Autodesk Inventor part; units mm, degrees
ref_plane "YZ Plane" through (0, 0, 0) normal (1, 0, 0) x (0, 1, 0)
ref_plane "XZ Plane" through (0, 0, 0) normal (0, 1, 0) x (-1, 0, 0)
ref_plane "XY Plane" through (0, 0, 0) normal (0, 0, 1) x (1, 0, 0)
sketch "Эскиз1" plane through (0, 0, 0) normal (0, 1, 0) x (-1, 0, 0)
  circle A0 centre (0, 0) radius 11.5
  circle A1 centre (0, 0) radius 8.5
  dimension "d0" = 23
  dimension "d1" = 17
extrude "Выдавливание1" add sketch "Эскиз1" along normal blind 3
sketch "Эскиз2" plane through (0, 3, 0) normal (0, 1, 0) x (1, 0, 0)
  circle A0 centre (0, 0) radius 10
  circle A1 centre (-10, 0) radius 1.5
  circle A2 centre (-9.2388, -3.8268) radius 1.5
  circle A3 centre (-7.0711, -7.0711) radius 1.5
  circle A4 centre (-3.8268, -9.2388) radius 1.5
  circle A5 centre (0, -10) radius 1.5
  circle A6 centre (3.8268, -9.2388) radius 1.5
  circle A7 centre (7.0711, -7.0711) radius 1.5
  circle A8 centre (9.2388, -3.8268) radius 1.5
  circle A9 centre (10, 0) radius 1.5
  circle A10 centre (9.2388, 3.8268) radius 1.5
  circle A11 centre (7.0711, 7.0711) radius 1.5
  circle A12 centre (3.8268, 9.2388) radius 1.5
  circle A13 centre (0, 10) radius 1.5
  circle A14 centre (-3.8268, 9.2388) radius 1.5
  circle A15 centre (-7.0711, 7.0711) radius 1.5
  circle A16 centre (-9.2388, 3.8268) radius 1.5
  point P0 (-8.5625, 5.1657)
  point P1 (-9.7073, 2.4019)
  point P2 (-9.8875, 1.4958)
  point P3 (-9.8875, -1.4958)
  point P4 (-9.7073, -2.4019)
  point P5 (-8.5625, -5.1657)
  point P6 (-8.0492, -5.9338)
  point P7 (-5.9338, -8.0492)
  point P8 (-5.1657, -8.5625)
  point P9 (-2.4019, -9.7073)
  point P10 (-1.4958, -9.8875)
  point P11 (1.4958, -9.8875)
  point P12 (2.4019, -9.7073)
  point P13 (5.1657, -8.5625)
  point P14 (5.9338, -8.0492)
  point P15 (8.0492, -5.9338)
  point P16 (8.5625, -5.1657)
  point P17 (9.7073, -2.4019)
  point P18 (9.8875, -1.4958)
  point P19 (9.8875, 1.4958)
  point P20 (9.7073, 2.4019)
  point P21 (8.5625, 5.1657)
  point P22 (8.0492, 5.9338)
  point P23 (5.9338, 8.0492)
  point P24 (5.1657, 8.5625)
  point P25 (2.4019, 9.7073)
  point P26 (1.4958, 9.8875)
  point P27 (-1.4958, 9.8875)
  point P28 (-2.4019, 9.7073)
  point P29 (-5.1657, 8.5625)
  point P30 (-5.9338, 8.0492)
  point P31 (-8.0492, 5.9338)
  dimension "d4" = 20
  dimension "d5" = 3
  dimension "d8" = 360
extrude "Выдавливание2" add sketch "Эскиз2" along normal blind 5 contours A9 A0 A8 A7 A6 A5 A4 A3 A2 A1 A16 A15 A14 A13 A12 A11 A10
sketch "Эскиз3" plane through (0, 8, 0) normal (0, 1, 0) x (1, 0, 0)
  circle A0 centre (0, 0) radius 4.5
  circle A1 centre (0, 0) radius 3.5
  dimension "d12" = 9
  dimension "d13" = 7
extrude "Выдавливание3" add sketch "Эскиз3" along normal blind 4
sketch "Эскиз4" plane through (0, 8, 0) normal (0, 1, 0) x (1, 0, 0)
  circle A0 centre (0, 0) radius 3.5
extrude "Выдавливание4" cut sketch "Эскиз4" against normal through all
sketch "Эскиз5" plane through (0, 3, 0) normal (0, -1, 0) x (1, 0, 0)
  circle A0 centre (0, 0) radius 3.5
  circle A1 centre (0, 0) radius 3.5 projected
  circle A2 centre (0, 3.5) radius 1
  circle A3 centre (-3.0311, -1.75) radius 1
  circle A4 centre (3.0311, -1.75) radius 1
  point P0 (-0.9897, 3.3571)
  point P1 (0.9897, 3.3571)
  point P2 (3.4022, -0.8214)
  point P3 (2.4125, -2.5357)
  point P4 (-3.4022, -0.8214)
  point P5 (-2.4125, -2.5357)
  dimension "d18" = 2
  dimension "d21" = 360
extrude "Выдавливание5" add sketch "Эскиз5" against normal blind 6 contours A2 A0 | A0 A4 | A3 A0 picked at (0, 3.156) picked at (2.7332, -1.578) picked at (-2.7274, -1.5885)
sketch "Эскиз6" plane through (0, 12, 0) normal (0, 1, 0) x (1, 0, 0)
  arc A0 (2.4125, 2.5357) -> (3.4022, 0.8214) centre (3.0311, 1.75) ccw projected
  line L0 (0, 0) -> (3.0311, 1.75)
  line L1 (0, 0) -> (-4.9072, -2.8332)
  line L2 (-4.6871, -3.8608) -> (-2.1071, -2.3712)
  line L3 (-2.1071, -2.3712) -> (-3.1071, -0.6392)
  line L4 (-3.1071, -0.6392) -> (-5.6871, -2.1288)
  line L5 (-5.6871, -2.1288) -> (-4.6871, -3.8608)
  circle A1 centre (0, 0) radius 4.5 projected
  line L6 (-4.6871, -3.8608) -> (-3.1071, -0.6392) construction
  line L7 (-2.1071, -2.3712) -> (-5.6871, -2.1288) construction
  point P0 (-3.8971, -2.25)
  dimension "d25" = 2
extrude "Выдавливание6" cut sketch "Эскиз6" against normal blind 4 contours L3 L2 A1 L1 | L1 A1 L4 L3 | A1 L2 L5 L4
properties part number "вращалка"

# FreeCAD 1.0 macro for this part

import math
import FreeCAD as App
import Part
import Sketcher
Q = App.Units.Quantity

doc = App.newDocument("Part")
body = doc.addObject("PartDesign::Body", "Body")

# Sketch on XZ plane
sketch1 = body.newObject("Sketcher::SketchObject", "Sketch")
sketch1.AttachmentSupport = (doc.getObject("XZ_Plane"), [""])
sketch1.MapMode = "FlatFace"
sketch1.addGeometry([
    Part.Circle(App.Vector(0, 0, 0), App.Vector(0, 0, 1), 11.5),
    Part.Circle(App.Vector(0, 0, 0), App.Vector(0, 0, 1), 8.5),
], False)
sketch1.addConstraint([
    Sketcher.Constraint("Coincident", 0, 3, -1, 1),
    Sketcher.Constraint("Coincident", 1, 3, -1, 1),
    Sketcher.Constraint("Diameter", 0, 23.0),
    Sketcher.Constraint("Diameter", 1, 17.0),
])
pad1 = body.newObject("PartDesign::Pad", "Pad")
pad1.Profile = sketch1
pad1.Length = 3
pad1.Reversed = True

# Sketch on XZ plane
sketch2 = body.newObject("Sketcher::SketchObject", "Sketch001")
sketch2.AttachmentSupport = (doc.getObject("XZ_Plane"), [""])
sketch2.MapMode = "FlatFace"
sketch2.AttachmentOffset = App.Placement(App.Vector(0, 0, -3), App.Rotation())
sketch2.addGeometry([
    Part.ArcOfCircle(Part.Circle(App.Vector(10, 0, 0), App.Vector(0, 0, 1), 1.5), math.radians(94.301222), math.radians(265.698778)),  # 0
    Part.ArcOfCircle(Part.Circle(App.Vector(0, 0, 0), App.Vector(0, 0, 1), 10), math.radians(-13.89736), math.radians(-8.602445)),  # 1
    Part.ArcOfCircle(Part.Circle(App.Vector(9.2388, -3.8268, 0), App.Vector(0, 0, 1), 1.5), math.radians(71.80108), math.radians(243.199304)),  # 2
    Part.ArcOfCircle(Part.Circle(App.Vector(0, 0, 0), App.Vector(0, 0, 1), 10), math.radians(-36.397575), math.radians(-31.102256)),  # 3
    Part.ArcOfCircle(Part.Circle(App.Vector(7.0711, -7.0711, 0), App.Vector(0, 0, 1), 1.5), math.radians(49.302946), math.radians(220.697054)),  # 4
    Part.ArcOfCircle(Part.Circle(App.Vector(0, 0, 0), App.Vector(0, 0, 1), 10), math.radians(-58.897744), math.radians(-53.602425)),  # 5
    Part.ArcOfCircle(Part.Circle(App.Vector(3.8268, -9.2388, 0), App.Vector(0, 0, 1), 1.5), math.radians(26.800696), math.radians(198.19892)),  # 6
    Part.ArcOfCircle(Part.Circle(App.Vector(0, 0, 0), App.Vector(0, 0, 1), 10), math.radians(-81.397555), math.radians(-76.10264)),  # 7
    Part.ArcOfCircle(Part.Circle(App.Vector(0, -10, 0), App.Vector(0, 0, 1), 1.5), math.radians(4.301222), math.radians(175.698778)),  # 8
    Part.ArcOfCircle(Part.Circle(App.Vector(0, 0, 0), App.Vector(0, 0, 1), 10), math.radians(-103.89736), math.radians(-98.602445)),  # 9
    Part.ArcOfCircle(Part.Circle(App.Vector(-3.8268, -9.2388, 0), App.Vector(0, 0, 1), 1.5), math.radians(-18.19892), math.radians(153.199304)),  # 10
    Part.ArcOfCircle(Part.Circle(App.Vector(0, 0, 0), App.Vector(0, 0, 1), 10), math.radians(-126.397575), math.radians(-121.102256)),  # 11
    Part.ArcOfCircle(Part.Circle(App.Vector(-7.0711, -7.0711, 0), App.Vector(0, 0, 1), 1.5), math.radians(-40.697054), math.radians(130.697054)),  # 12
    Part.ArcOfCircle(Part.Circle(App.Vector(0, 0, 0), App.Vector(0, 0, 1), 10), math.radians(-148.897744), math.radians(-143.602425)),  # 13
    Part.ArcOfCircle(Part.Circle(App.Vector(-9.2388, -3.8268, 0), App.Vector(0, 0, 1), 1.5), math.radians(-63.199304), math.radians(108.19892)),  # 14
    Part.ArcOfCircle(Part.Circle(App.Vector(0, 0, 0), App.Vector(0, 0, 1), 10), math.radians(-171.397555), math.radians(-166.10264)),  # 15
    Part.ArcOfCircle(Part.Circle(App.Vector(-10, 0, 0), App.Vector(0, 0, 1), 1.5), math.radians(-85.698778), math.radians(85.698778)),  # 16
    Part.ArcOfCircle(Part.Circle(App.Vector(0, 0, 0), App.Vector(0, 0, 1), 10), math.radians(166.10264), math.radians(171.397555)),  # 17
    Part.ArcOfCircle(Part.Circle(App.Vector(-9.2388, 3.8268, 0), App.Vector(0, 0, 1), 1.5), math.radians(-108.19892), math.radians(63.199304)),  # 18
    Part.ArcOfCircle(Part.Circle(App.Vector(0, 0, 0), App.Vector(0, 0, 1), 10), math.radians(143.602425), math.radians(148.897744)),  # 19
    Part.ArcOfCircle(Part.Circle(App.Vector(-7.0711, 7.0711, 0), App.Vector(0, 0, 1), 1.5), math.radians(-130.697054), math.radians(40.697054)),  # 20
    Part.ArcOfCircle(Part.Circle(App.Vector(0, 0, 0), App.Vector(0, 0, 1), 10), math.radians(121.102256), math.radians(126.397575)),  # 21
    Part.ArcOfCircle(Part.Circle(App.Vector(-3.8268, 9.2388, 0), App.Vector(0, 0, 1), 1.5), math.radians(-153.199304), math.radians(18.19892)),  # 22
    Part.ArcOfCircle(Part.Circle(App.Vector(0, 0, 0), App.Vector(0, 0, 1), 10), math.radians(98.602445), math.radians(103.89736)),  # 23
    Part.ArcOfCircle(Part.Circle(App.Vector(0, 10, 0), App.Vector(0, 0, 1), 1.5), math.radians(-175.698778), math.radians(-4.301222)),  # 24
    Part.ArcOfCircle(Part.Circle(App.Vector(0, 0, 0), App.Vector(0, 0, 1), 10), math.radians(76.10264), math.radians(81.397555)),  # 25
    Part.ArcOfCircle(Part.Circle(App.Vector(3.8268, 9.2388, 0), App.Vector(0, 0, 1), 1.5), math.radians(161.80108), math.radians(333.199304)),  # 26
    Part.ArcOfCircle(Part.Circle(App.Vector(0, 0, 0), App.Vector(0, 0, 1), 10), math.radians(53.602425), math.radians(58.897744)),  # 27
    Part.ArcOfCircle(Part.Circle(App.Vector(7.0711, 7.0711, 0), App.Vector(0, 0, 1), 1.5), math.radians(139.302946), math.radians(310.697054)),  # 28
    Part.ArcOfCircle(Part.Circle(App.Vector(0, 0, 0), App.Vector(0, 0, 1), 10), math.radians(31.102256), math.radians(36.397575)),  # 29
    Part.ArcOfCircle(Part.Circle(App.Vector(9.2388, 3.8268, 0), App.Vector(0, 0, 1), 1.5), math.radians(116.800696), math.radians(288.19892)),  # 30
    Part.ArcOfCircle(Part.Circle(App.Vector(0, 0, 0), App.Vector(0, 0, 1), 10), math.radians(8.602445), math.radians(13.89736)),  # 31
], False)
sketch2.addConstraint([
    Sketcher.Constraint("Coincident", 0, 2, 1, 2),
    Sketcher.Constraint("Coincident", 1, 1, 2, 1),
    Sketcher.Constraint("Coincident", 2, 2, 3, 2),
    Sketcher.Constraint("Coincident", 3, 1, 4, 1),
    Sketcher.Constraint("Coincident", 4, 2, 5, 2),
    Sketcher.Constraint("Coincident", 5, 1, 6, 1),
    Sketcher.Constraint("Coincident", 6, 2, 7, 2),
    Sketcher.Constraint("Coincident", 7, 1, 8, 1),
    Sketcher.Constraint("Coincident", 8, 2, 9, 2),
    Sketcher.Constraint("Coincident", 9, 1, 10, 1),
    Sketcher.Constraint("Coincident", 10, 2, 11, 2),
    Sketcher.Constraint("Coincident", 11, 1, 12, 1),
    Sketcher.Constraint("Coincident", 12, 2, 13, 2),
    Sketcher.Constraint("Coincident", 13, 1, 14, 1),
    Sketcher.Constraint("Coincident", 14, 2, 15, 2),
    Sketcher.Constraint("Coincident", 15, 1, 16, 1),
    Sketcher.Constraint("Coincident", 16, 2, 17, 2),
    Sketcher.Constraint("Coincident", 17, 1, 18, 1),
    Sketcher.Constraint("Coincident", 18, 2, 19, 2),
    Sketcher.Constraint("Coincident", 19, 1, 20, 1),
    Sketcher.Constraint("Coincident", 20, 2, 21, 2),
    Sketcher.Constraint("Coincident", 21, 1, 22, 1),
    Sketcher.Constraint("Coincident", 22, 2, 23, 2),
    Sketcher.Constraint("Coincident", 23, 1, 24, 1),
    Sketcher.Constraint("Coincident", 24, 2, 25, 2),
    Sketcher.Constraint("Coincident", 25, 1, 26, 1),
    Sketcher.Constraint("Coincident", 26, 2, 27, 2),
    Sketcher.Constraint("Coincident", 27, 1, 28, 1),
    Sketcher.Constraint("Coincident", 28, 2, 29, 2),
    Sketcher.Constraint("Coincident", 29, 1, 30, 1),
    Sketcher.Constraint("Coincident", 30, 2, 31, 2),
    Sketcher.Constraint("Coincident", 31, 1, 0, 1),
    Sketcher.Constraint("Coincident", 1, 3, -1, 1),
    Sketcher.Constraint("Coincident", 3, 3, -1, 1),
    Sketcher.Constraint("Coincident", 5, 3, -1, 1),
    Sketcher.Constraint("Coincident", 7, 3, -1, 1),
    Sketcher.Constraint("Coincident", 9, 3, -1, 1),
    Sketcher.Constraint("Coincident", 11, 3, -1, 1),
    Sketcher.Constraint("Coincident", 13, 3, -1, 1),
    Sketcher.Constraint("Coincident", 15, 3, -1, 1),
    Sketcher.Constraint("Coincident", 17, 3, -1, 1),
    Sketcher.Constraint("Coincident", 19, 3, -1, 1),
    Sketcher.Constraint("Coincident", 21, 3, -1, 1),
    Sketcher.Constraint("Coincident", 23, 3, -1, 1),
    Sketcher.Constraint("Coincident", 25, 3, -1, 1),
    Sketcher.Constraint("Coincident", 27, 3, -1, 1),
    Sketcher.Constraint("Coincident", 29, 3, -1, 1),
    Sketcher.Constraint("Coincident", 31, 3, -1, 1),
    Sketcher.Constraint("Equal", 0, 2),
    Sketcher.Constraint("Equal", 1, 3),
    Sketcher.Constraint("Equal", 2, 4),
    Sketcher.Constraint("Equal", 3, 5),
    Sketcher.Constraint("Equal", 4, 6),
    Sketcher.Constraint("Equal", 5, 7),
    Sketcher.Constraint("Equal", 6, 8),
    Sketcher.Constraint("Equal", 7, 9),
    Sketcher.Constraint("Equal", 8, 10),
    Sketcher.Constraint("Equal", 9, 11),
    Sketcher.Constraint("Equal", 10, 12),
    Sketcher.Constraint("Equal", 11, 13),
    Sketcher.Constraint("Equal", 12, 14),
    Sketcher.Constraint("Equal", 13, 15),
    Sketcher.Constraint("Equal", 14, 16),
    Sketcher.Constraint("Equal", 15, 17),
    Sketcher.Constraint("Equal", 16, 18),
    Sketcher.Constraint("Equal", 17, 19),
    Sketcher.Constraint("Equal", 18, 20),
    Sketcher.Constraint("Equal", 19, 21),
    Sketcher.Constraint("Equal", 20, 22),
    Sketcher.Constraint("Equal", 21, 23),
    Sketcher.Constraint("Equal", 22, 24),
    Sketcher.Constraint("Equal", 23, 25),
    Sketcher.Constraint("Equal", 24, 26),
    Sketcher.Constraint("Equal", 25, 27),
    Sketcher.Constraint("Equal", 26, 28),
    Sketcher.Constraint("Equal", 27, 29),
    Sketcher.Constraint("Equal", 28, 30),
    Sketcher.Constraint("Equal", 29, 31),
    Sketcher.Constraint("Symmetric", 0, 3, 16, 3, -1, 1),
    Sketcher.Constraint("Symmetric", 2, 3, 18, 3, -1, 1),
    Sketcher.Constraint("Symmetric", 4, 3, 20, 3, -1, 1),
    Sketcher.Constraint("Symmetric", 6, 3, 22, 3, -1, 1),
    Sketcher.Constraint("Symmetric", 8, 3, 24, 3, -1, 1),
    Sketcher.Constraint("Symmetric", 10, 3, 26, 3, -1, 1),
    Sketcher.Constraint("Symmetric", 12, 3, 28, 3, -1, 1),
    Sketcher.Constraint("Symmetric", 14, 3, 30, 3, -1, 1),
    Sketcher.Constraint("Symmetric", 6, 3, 10, 3, -2),
    Sketcher.Constraint("Symmetric", 4, 3, 12, 3, -2),
    Sketcher.Constraint("Symmetric", 2, 3, 14, 3, -2),
    Sketcher.Constraint("PointOnObject", 0, 3, -1),
    Sketcher.Constraint("PointOnObject", 8, 3, -2),
    Sketcher.Constraint("Radius", 1, 10.0),
    Sketcher.Constraint("Radius", 0, 1.5),
    Sketcher.Constraint("DistanceX", -1, 1, 0, 3, 10.0),
    Sketcher.Constraint("DistanceY", 8, 3, -1, 1, 10.0),
    Sketcher.Constraint("DistanceX", -1, 1, 4, 3, 7.071),
    Sketcher.Constraint("DistanceY", 4, 3, -1, 1, 7.071),
    Sketcher.Constraint("DistanceX", -1, 1, 2, 3, 9.2388),
    Sketcher.Constraint("DistanceY", 2, 3, -1, 1, 3.8268),
    Sketcher.Constraint("DistanceX", -1, 1, 6, 3, 3.8268),
    Sketcher.Constraint("DistanceY", 6, 3, -1, 1, 9.2388),
])
pad2 = body.newObject("PartDesign::Pad", "Pad001")
pad2.Profile = sketch2
pad2.Length = 5
pad2.Reversed = True

# Sketch on XZ plane
sketch3 = body.newObject("Sketcher::SketchObject", "Sketch002")
sketch3.AttachmentSupport = (doc.getObject("XZ_Plane"), [""])
sketch3.MapMode = "FlatFace"
sketch3.AttachmentOffset = App.Placement(App.Vector(0, 0, -8), App.Rotation())
sketch3.addGeometry([
    Part.Circle(App.Vector(0, 0, 0), App.Vector(0, 0, 1), 4.5),
    Part.Circle(App.Vector(0, 0, 0), App.Vector(0, 0, 1), 3.5),
], False)
sketch3.addConstraint([
    Sketcher.Constraint("Coincident", 0, 3, -1, 1),
    Sketcher.Constraint("Coincident", 1, 3, -1, 1),
    Sketcher.Constraint("Diameter", 0, 9.0),
    Sketcher.Constraint("Diameter", 1, 7.0),
])
pad3 = body.newObject("PartDesign::Pad", "Pad002")
pad3.Profile = sketch3
pad3.Length = 4
pad3.Reversed = True

# Sketch on XZ plane
sketch4 = body.newObject("Sketcher::SketchObject", "Sketch003")
sketch4.AttachmentSupport = (doc.getObject("XZ_Plane"), [""])
sketch4.MapMode = "FlatFace"
sketch4.AttachmentOffset = App.Placement(App.Vector(0, 0, -8), App.Rotation())
sketch4.addGeometry(Part.Circle(App.Vector(0, 0, 0), App.Vector(0, 0, 1), 3.5), False)
sketch4.addConstraint([
    Sketcher.Constraint("Coincident", 0, 3, -1, 1),
    Sketcher.Constraint("Diameter", 0, 7.0),
])
pocket1 = body.newObject("PartDesign::Pocket", "Pocket")
pocket1.Profile = sketch4
pocket1.Type = "ThroughAll"
pocket1.Reversed = True

# Sketch on XZ plane
sketch5 = body.newObject("Sketcher::SketchObject", "Sketch004")
sketch5.AttachmentSupport = (doc.getObject("XZ_Plane"), [""])
sketch5.MapMode = "FlatFace"
sketch5.AttachmentOffset = App.Placement(App.Vector(0, 0, -3), App.Rotation())
sketch5.addGeometry([
    Part.ArcOfCircle(Part.Circle(App.Vector(0, 3.5, 0), App.Vector(0, 0, 1), 1), math.radians(-171.786789), math.radians(-8.213211)),  # 0
    Part.ArcOfCircle(Part.Circle(App.Vector(0, 0, 0), App.Vector(0, 0, 1), 3.5), math.radians(73.573579), math.radians(106.426421)),  # 1
    Part.ArcOfCircle(Part.Circle(App.Vector(0, 0, 0), App.Vector(0, 0, 1), 3.5), math.radians(-46.426308), math.radians(-13.573511)),  # 2
    Part.ArcOfCircle(Part.Circle(App.Vector(3.0311, -1.75, 0), App.Vector(0, 0, 1), 1), math.radians(68.213835), math.radians(231.786347)),  # 3
    Part.ArcOfCircle(Part.Circle(App.Vector(-3.0311, -1.75, 0), App.Vector(0, 0, 1), 1), math.radians(-51.786347), math.radians(111.786165)),  # 4
    Part.ArcOfCircle(Part.Circle(App.Vector(0, 0, 0), App.Vector(0, 0, 1), 3.5), math.radians(-166.426489), math.radians(-133.573692)),  # 5
], False)
sketch5.addConstraint([
    Sketcher.Constraint("Coincident", 0, 1, 1, 2),
    Sketcher.Constraint("Coincident", 1, 1, 0, 2),
    Sketcher.Constraint("Coincident", 2, 1, 3, 2),
    Sketcher.Constraint("Coincident", 3, 1, 2, 2),
    Sketcher.Constraint("Coincident", 4, 1, 5, 2),
    Sketcher.Constraint("Coincident", 5, 1, 4, 2),
    Sketcher.Constraint("Coincident", 1, 3, -1, 1),
    Sketcher.Constraint("Coincident", 2, 3, -1, 1),
    Sketcher.Constraint("Coincident", 5, 3, -1, 1),
    Sketcher.Constraint("Equal", 1, 2),
    Sketcher.Constraint("Equal", 0, 3),
    Sketcher.Constraint("Equal", 3, 4),
    Sketcher.Constraint("Equal", 2, 5),
    Sketcher.Constraint("Symmetric", 3, 3, 4, 3, -2),
    Sketcher.Constraint("PointOnObject", 0, 3, -2),
    Sketcher.Constraint("Radius", 0, 1.0),
    Sketcher.Constraint("Radius", 1, 3.5),
    Sketcher.Constraint("DistanceY", -1, 1, 0, 3, 3.5),
    Sketcher.Constraint("DistanceY", 3, 3, -1, 1, 1.75),
    Sketcher.Constraint("DistanceX", -1, 1, 3, 3, 3.031),
])
pad4 = body.newObject("PartDesign::Pad", "Pad003")
pad4.Profile = sketch5
pad4.Length = 6
pad4.Reversed = True

# Sketch on XZ plane
sketch6 = body.newObject("Sketcher::SketchObject", "Sketch005")
sketch6.AttachmentSupport = (doc.getObject("XZ_Plane"), [""])
sketch6.MapMode = "FlatFace"
sketch6.AttachmentOffset = App.Placement(App.Vector(0, 0, -12), App.Rotation())
sketch6.addGeometry([
    Part.LineSegment(App.Vector(-2.1071, 2.3712, 0), App.Vector(-3.1071, 0.6392, 0)),
    Part.LineSegment(App.Vector(-3.1071, 0.6392, 0), App.Vector(-5.6871, 2.1288, 0)),
    Part.LineSegment(App.Vector(-5.6871, 2.1288, 0), App.Vector(-4.6871, 3.8608, 0)),
    Part.LineSegment(App.Vector(-4.6871, 3.8608, 0), App.Vector(-2.1071, 2.3712, 0)),
], False)
sketch6.addConstraint([
    Sketcher.Constraint("Coincident", 0, 2, 1, 1),
    Sketcher.Constraint("Coincident", 1, 2, 2, 1),
    Sketcher.Constraint("Coincident", 2, 2, 3, 1),
    Sketcher.Constraint("Coincident", 3, 2, 0, 1),
    Sketcher.Constraint("Perpendicular", 0, 1),
    Sketcher.Constraint("Perpendicular", 1, 2),
    Sketcher.Constraint("Perpendicular", 2, 3),
    Sketcher.Constraint("Distance", 0, 2.0),
    Sketcher.Constraint("Angle", 0, Q("-120.0007 deg")),
    Sketcher.Constraint("DistanceX", 1, 2, 0, 2, 2.58),
    Sketcher.Constraint("DistanceX", 0, 2, -1, 1, 3.107),
    Sketcher.Constraint("DistanceY", -1, 1, 0, 2, 0.6392),
])
pocket2 = body.newObject("PartDesign::Pocket", "Pocket001")
pocket2.Profile = sketch6
pocket2.Length = 4
pocket2.Reversed = True

doc.recompute()
